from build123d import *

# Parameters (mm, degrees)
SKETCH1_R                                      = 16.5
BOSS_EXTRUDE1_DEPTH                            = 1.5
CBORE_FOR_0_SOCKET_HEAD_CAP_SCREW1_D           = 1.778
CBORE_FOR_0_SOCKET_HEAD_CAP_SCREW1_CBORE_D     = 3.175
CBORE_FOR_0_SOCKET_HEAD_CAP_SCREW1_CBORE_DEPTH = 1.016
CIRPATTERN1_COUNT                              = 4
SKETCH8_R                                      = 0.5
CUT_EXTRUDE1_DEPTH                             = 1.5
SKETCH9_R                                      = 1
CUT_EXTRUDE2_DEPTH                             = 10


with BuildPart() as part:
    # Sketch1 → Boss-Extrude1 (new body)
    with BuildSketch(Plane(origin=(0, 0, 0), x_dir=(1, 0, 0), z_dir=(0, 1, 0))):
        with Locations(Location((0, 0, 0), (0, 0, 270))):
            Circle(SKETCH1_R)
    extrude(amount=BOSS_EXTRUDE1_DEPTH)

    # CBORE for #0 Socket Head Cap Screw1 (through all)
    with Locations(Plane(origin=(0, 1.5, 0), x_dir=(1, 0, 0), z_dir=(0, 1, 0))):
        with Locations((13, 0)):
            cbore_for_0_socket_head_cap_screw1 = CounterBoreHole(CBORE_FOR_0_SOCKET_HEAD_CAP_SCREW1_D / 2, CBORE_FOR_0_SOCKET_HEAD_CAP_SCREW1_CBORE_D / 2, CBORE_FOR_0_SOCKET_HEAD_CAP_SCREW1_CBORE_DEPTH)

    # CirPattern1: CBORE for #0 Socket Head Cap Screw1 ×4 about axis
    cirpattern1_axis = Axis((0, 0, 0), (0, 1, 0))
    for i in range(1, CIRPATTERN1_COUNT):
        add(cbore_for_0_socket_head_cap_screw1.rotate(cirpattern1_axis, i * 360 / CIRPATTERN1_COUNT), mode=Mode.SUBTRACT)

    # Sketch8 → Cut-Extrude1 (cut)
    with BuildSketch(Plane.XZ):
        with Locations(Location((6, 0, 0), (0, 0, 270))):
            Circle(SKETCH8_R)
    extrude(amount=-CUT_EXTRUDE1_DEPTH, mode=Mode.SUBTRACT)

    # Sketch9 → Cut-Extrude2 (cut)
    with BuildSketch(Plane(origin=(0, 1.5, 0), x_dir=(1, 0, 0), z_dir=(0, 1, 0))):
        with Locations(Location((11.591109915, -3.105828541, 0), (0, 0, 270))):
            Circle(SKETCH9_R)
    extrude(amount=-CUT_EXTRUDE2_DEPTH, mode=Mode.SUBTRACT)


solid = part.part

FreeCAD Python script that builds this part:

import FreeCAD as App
import Part
import Sketcher
from FreeCAD import Vector
Q = App.Units.Quantity

doc = App.newDocument("Part")
params = doc.addObject("Spreadsheet::Sheet", "Params")
for row, (alias, value) in enumerate([
    ("sketch1_diameter", "33 mm"),
    ("pad1_length", "1.5 mm"),
    ("hole_diameter", "1.778 mm"),
    ("hole_cbore_diameter", "3.175 mm"),
    ("hole_cbore_depth", "1.016 mm"),
    ("sketch3_diameter", "1 mm"),
    ("pocket1_length", "1.5 mm"),
    ("sketch4_diameter", "2 mm"),
    ("pocket2_length", "10 mm"),
], start=1):
    params.set(f"A{row}", alias)
    params.set(f"B{row}", "=" + value)
    params.setAlias(f"B{row}", alias)

body = doc.addObject("PartDesign::Body", "Body")

# Sketch on XZ plane
sketch1 = body.newObject("Sketcher::SketchObject", "Sketch")
sketch1.AttachmentSupport = (doc.getObject("XZ_Plane"), [""])
sketch1.MapMode = "FlatFace"
sketch1.addGeometry(Part.Circle(Vector(0, 0, 0), Vector(0, 0, 1), 16), False)
sketch1.addConstraint(Sketcher.Constraint("Coincident", 0, 3, -1, 1))
sketch1.addConstraint(Sketcher.Constraint("Diameter", 0, Q("33 mm")))
sketch1.setExpression("Constraints[1]", "Params.sketch1_diameter")
pad1 = body.newObject("PartDesign::Pad", "Pad")
pad1.Profile = sketch1
pad1.setExpression("Length", "Params.pad1_length")
pad1.Reversed = True

# Sketch on XZ plane
sketch2 = body.newObject("Sketcher::SketchObject", "Sketch001")
sketch2.AttachmentSupport = (doc.getObject("XZ_Plane"), [""])
sketch2.MapMode = "FlatFace"
sketch2.AttachmentOffset = App.Placement(Vector(0, 0, -1.5), App.Rotation())
sketch2.addGeometry(Part.Circle(Vector(13, 0, 0), Vector(0, 0, 1), 0.9), False)
sketch2.addConstraint(Sketcher.Constraint("PointOnObject", 0, 3, -1))
sketch2.addConstraint(Sketcher.Constraint("Diameter", 0, Q("1.778 mm")))
sketch2.addConstraint(Sketcher.Constraint("DistanceX", -1, 1, 0, 3, Q("13 mm")))
doc.recompute()
hole = body.newObject("PartDesign::Hole", "Hole")
hole.Profile = sketch2
hole.ThreadType = "None"
hole.setExpression("Diameter", "Params.hole_diameter")
hole.DepthType = "ThroughAll"
hole.HoleCutType = "Counterbore"
hole.setExpression("HoleCutDiameter", "Params.hole_cbore_diameter")
hole.setExpression("HoleCutDepth", "Params.hole_cbore_depth")
hole.Reversed = True
doc.recompute()

polarpattern = body.newObject("PartDesign::PolarPattern", "PolarPattern")
polarpattern.Originals = [hole]
polarpattern.Axis = (doc.getObject("Y_Axis"), [""])
polarpattern.Angle = 360
polarpattern.Occurrences = 4
body.Tip = polarpattern

# Sketch on XZ plane
sketch3 = body.newObject("Sketcher::SketchObject", "Sketch002")
sketch3.AttachmentSupport = (doc.getObject("XZ_Plane"), [""])
sketch3.MapMode = "FlatFace"
sketch3.addGeometry(Part.Circle(Vector(6, 0, 0), Vector(0, 0, 1), 0.5), False)
sketch3.addConstraint(Sketcher.Constraint("PointOnObject", 0, 3, -1))
sketch3.addConstraint(Sketcher.Constraint("Diameter", 0, Q("1 mm")))
sketch3.addConstraint(Sketcher.Constraint("DistanceX", -1, 1, 0, 3, Q("6 mm")))
sketch3.setExpression("Constraints[1]", "Params.sketch3_diameter")
pocket1 = body.newObject("PartDesign::Pocket", "Pocket")
pocket1.Profile = sketch3
pocket1.setExpression("Length", "Params.pocket1_length")

# Sketch on XZ plane
sketch4 = body.newObject("Sketcher::SketchObject", "Sketch003")
sketch4.AttachmentSupport = (doc.getObject("XZ_Plane"), [""])
sketch4.MapMode = "FlatFace"
sketch4.AttachmentOffset = App.Placement(Vector(0, 0, -1.5), App.Rotation())
sketch4.addGeometry(Part.Circle(Vector(11.6, 3.1, 0), Vector(0, 0, 1), 1), False)
sketch4.addConstraint(Sketcher.Constraint("Diameter", 0, Q("2 mm")))
sketch4.addConstraint(Sketcher.Constraint("DistanceX", -1, 1, 0, 3, Q("11.59111 mm")))
sketch4.addConstraint(Sketcher.Constraint("DistanceY", -1, 1, 0, 3, Q("3.105829 mm")))
sketch4.setExpression("Constraints[0]", "Params.sketch4_diameter")
pocket2 = body.newObject("PartDesign::Pocket", "Pocket001")
pocket2.Profile = sketch4
pocket2.setExpression("Length", "Params.pocket2_length")
pocket2.Reversed = True

doc.recompute()
